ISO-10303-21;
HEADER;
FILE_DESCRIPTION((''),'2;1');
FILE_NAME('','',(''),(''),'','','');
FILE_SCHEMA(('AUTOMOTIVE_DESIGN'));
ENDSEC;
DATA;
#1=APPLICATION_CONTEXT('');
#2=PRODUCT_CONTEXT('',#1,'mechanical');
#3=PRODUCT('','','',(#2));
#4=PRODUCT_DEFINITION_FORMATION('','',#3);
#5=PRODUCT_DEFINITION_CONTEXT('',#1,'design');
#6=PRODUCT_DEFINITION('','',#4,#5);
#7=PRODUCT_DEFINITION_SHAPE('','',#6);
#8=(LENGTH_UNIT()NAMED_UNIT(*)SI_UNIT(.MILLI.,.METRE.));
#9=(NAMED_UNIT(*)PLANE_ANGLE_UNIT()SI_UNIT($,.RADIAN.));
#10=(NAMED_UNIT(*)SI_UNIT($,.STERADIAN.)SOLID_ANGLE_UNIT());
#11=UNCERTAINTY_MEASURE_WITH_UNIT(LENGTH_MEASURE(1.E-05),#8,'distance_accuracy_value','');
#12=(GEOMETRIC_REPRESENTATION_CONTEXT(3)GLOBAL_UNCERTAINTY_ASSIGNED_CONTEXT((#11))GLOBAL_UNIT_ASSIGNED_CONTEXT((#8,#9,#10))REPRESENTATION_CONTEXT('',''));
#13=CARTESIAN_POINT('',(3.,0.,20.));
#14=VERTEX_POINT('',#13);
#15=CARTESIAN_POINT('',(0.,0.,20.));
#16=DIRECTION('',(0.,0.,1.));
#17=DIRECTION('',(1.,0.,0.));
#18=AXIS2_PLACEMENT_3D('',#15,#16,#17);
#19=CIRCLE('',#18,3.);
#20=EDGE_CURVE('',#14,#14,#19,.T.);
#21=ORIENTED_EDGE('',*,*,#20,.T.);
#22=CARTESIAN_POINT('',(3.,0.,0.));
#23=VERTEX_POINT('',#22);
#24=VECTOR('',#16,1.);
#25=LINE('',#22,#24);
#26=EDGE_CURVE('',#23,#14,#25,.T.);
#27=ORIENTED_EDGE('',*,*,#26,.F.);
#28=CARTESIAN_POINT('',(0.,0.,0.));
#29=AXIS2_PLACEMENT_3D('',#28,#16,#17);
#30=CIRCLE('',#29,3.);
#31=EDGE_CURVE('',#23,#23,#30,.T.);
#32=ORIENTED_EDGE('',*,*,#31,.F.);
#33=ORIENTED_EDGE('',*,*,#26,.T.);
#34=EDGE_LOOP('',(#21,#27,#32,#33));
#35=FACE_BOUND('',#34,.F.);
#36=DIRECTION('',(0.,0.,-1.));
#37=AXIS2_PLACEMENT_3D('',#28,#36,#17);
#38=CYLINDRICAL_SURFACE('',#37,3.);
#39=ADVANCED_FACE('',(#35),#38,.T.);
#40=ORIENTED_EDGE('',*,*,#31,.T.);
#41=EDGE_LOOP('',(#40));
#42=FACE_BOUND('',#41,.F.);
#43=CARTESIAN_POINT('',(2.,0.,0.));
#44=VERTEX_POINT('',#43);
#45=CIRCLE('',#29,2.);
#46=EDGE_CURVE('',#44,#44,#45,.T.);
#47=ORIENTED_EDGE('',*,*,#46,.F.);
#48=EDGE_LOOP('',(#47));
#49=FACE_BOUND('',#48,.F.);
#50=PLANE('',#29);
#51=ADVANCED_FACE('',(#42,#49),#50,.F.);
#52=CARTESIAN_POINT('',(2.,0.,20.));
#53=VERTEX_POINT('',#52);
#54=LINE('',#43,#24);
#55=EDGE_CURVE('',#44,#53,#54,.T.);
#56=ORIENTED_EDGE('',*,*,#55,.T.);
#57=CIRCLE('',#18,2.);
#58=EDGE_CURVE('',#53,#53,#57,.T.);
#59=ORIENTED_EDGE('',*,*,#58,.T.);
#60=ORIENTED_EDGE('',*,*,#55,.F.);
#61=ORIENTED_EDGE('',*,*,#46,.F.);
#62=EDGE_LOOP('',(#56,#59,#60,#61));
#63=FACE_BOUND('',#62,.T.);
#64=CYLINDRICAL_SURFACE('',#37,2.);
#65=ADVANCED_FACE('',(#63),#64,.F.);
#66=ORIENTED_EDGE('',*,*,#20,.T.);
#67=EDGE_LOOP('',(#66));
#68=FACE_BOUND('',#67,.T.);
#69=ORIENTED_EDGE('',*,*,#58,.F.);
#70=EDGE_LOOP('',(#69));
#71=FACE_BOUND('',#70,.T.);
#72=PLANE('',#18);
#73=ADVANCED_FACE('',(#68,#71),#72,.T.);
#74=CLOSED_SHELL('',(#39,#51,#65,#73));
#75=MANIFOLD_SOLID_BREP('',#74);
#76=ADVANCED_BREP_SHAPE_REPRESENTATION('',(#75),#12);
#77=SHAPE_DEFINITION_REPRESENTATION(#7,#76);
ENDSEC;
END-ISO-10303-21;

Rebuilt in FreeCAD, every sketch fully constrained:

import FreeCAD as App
import Part
import Sketcher

V = App.Vector

doc = App.newDocument("Part")
body = doc.addObject("PartDesign::Body", "Body")

# Sketch on XY plane
sketch1 = body.newObject("Sketcher::SketchObject", "Sketch")
sketch1.AttachmentSupport = (doc.getObject("XY_Plane"), [""])
sketch1.MapMode = "FlatFace"
sketch1.addGeometry([
    Part.Circle(V(0, 0, 0), V(0, 0, 1), 3),
    Part.Circle(V(0, 0, 0), V(0, 0, 1), 2),
], False)
sketch1.addConstraint([
    Sketcher.Constraint("Coincident", 0, 3, -1, 1),
    Sketcher.Constraint("Coincident", 1, 3, -1, 1),
    Sketcher.Constraint("Diameter", 0, 6.0),
    Sketcher.Constraint("Diameter", 1, 4.0),
])
pad1 = body.newObject("PartDesign::Pad", "Pad")
pad1.Profile = sketch1
pad1.Length = 20

doc.recompute()
